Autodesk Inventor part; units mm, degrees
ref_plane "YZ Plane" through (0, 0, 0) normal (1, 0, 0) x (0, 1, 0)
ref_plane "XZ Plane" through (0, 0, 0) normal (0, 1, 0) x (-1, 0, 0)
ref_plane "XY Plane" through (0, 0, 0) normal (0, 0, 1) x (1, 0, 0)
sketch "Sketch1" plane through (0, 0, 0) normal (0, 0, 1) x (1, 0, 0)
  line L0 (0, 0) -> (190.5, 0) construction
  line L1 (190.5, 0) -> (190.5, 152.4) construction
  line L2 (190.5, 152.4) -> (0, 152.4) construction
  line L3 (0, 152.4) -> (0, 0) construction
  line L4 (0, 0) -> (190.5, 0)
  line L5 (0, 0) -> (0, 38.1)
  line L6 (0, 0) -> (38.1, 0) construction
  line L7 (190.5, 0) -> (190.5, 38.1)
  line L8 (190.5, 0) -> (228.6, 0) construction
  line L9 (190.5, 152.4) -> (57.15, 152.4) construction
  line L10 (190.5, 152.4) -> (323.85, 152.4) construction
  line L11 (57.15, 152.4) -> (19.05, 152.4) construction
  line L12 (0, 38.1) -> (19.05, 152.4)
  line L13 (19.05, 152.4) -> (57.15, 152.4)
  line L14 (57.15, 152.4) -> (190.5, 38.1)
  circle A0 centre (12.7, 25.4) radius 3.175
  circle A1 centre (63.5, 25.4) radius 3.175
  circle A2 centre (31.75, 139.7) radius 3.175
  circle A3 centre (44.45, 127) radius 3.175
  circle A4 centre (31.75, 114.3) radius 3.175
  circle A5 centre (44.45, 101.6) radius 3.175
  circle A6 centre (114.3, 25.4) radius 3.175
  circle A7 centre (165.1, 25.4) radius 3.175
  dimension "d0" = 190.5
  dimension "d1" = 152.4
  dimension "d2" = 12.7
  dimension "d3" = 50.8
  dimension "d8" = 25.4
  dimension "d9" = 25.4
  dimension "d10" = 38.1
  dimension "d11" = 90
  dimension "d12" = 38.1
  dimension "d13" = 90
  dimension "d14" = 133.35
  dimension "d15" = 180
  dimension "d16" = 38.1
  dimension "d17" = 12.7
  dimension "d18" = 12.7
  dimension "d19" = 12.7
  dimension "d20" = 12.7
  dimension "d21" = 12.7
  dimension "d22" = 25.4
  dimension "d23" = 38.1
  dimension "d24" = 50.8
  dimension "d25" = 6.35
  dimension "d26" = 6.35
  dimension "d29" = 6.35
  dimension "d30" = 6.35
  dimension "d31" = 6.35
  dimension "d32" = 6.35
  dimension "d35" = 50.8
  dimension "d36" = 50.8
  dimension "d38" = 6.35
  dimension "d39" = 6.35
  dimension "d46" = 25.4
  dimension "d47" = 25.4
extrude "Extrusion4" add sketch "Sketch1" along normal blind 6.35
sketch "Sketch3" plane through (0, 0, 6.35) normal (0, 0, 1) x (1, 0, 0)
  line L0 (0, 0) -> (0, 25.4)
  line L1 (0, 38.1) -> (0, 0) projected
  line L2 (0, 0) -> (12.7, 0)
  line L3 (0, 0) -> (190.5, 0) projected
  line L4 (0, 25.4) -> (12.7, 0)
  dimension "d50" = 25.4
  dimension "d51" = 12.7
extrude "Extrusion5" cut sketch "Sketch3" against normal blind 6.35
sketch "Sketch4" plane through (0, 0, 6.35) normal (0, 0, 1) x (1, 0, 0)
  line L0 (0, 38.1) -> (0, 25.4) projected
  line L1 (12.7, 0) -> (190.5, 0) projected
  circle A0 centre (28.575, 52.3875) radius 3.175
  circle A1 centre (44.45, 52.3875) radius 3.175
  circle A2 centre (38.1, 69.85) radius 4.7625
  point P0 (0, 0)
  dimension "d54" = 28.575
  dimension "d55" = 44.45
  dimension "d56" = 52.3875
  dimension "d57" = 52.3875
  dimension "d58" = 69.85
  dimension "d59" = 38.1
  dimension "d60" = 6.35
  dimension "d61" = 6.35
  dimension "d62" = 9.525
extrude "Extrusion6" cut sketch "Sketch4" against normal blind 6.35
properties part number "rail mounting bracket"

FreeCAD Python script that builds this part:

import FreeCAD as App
import Part
import Sketcher
from FreeCAD import Vector
Q = App.Units.Quantity


def add_polygon(sketch, points):
    """Adds a closed chain of lines whose ends are joined by coincident constraints."""
    first, n = sketch.GeometryCount, len(points)
    for a, b in zip(points, points[1:] + points[:1]):
        sketch.addGeometry(Part.LineSegment(App.Vector(*a, 0), App.Vector(*b, 0)), False)
    for i in range(n):
        sketch.addConstraint(Sketcher.Constraint("Coincident", first + i, 2, first + (i + 1) % n, 1))

doc = App.newDocument("Part")
body = doc.addObject("PartDesign::Body", "Body")

sketch1 = body.newObject("Sketcher::SketchObject", "Sketch")
sketch1.AttachmentSupport = (doc.getObject("XY_Plane"), [""])
sketch1.MapMode = "FlatFace"
add_polygon(sketch1, [(0, 38.1), (0, 0), (190.5, 0), (190.5, 38.1), (57.15, 152.4), (19.05, 152.4)])
sketch1.addGeometry(Part.Circle(Vector(12.7, 25.4, 0), Vector(0, 0, 1), 3.175), False)
sketch1.addGeometry(Part.Circle(Vector(63.5, 25.4, 0), Vector(0, 0, 1), 3.175), False)
sketch1.addGeometry(Part.Circle(Vector(114.3, 25.4, 0), Vector(0, 0, 1), 3.175), False)
sketch1.addGeometry(Part.Circle(Vector(165.1, 25.4, 0), Vector(0, 0, 1), 3.175), False)
sketch1.addGeometry(Part.Circle(Vector(44.45, 101.6, 0), Vector(0, 0, 1), 3.175), False)
sketch1.addGeometry(Part.Circle(Vector(31.75, 114.3, 0), Vector(0, 0, 1), 3.175), False)
sketch1.addGeometry(Part.Circle(Vector(44.45, 127, 0), Vector(0, 0, 1), 3.175), False)
sketch1.addGeometry(Part.Circle(Vector(31.75, 139.7, 0), Vector(0, 0, 1), 3.175), False)
sketch1.addConstraint(Sketcher.Constraint("Vertical", 0))
sketch1.addConstraint(Sketcher.Constraint("Horizontal", 1))
sketch1.addConstraint(Sketcher.Constraint("Vertical", 2))
sketch1.addConstraint(Sketcher.Constraint("Horizontal", 4))
sketch1.addConstraint(Sketcher.Constraint("Coincident", 0, 2, -1, 1))
sketch1.addConstraint(Sketcher.Constraint("Equal", 6, 7))
sketch1.addConstraint(Sketcher.Constraint("Equal", 7, 8))
sketch1.addConstraint(Sketcher.Constraint("Equal", 8, 9))
sketch1.addConstraint(Sketcher.Constraint("Equal", 9, 10))
sketch1.addConstraint(Sketcher.Constraint("Equal", 10, 11))
sketch1.addConstraint(Sketcher.Constraint("Equal", 11, 12))
sketch1.addConstraint(Sketcher.Constraint("Equal", 12, 13))
sketch1.addConstraint(Sketcher.Constraint("Horizontal", 6, 3, 7, 3))
sketch1.addConstraint(Sketcher.Constraint("Horizontal", 7, 3, 8, 3))
sketch1.addConstraint(Sketcher.Constraint("Horizontal", 8, 3, 9, 3))
sketch1.addConstraint(Sketcher.Constraint("Horizontal", 2, 2, 5, 2))
sketch1.addConstraint(Sketcher.Constraint("Vertical", 10, 3, 12, 3))
sketch1.addConstraint(Sketcher.Constraint("Vertical", 11, 3, 13, 3))
sketch1.addConstraint(Sketcher.Constraint("Equal", 4, 0))
sketch1.addConstraint(Sketcher.Constraint("Diameter", 6, Q("0.25 in")))
sketch1.addConstraint(Sketcher.Constraint("DistanceX", 1, 1, 1, 2, Q("7.5 in")))
sketch1.addConstraint(Sketcher.Constraint("DistanceX", 4, 2, 4, 1, Q("1.5 in")))
sketch1.addConstraint(Sketcher.Constraint("DistanceY", -1, 1, 6, 3, Q("1 in")))
sketch1.addConstraint(Sketcher.Constraint("DistanceY", -1, 1, 3, 2, Q("6 in")))
sketch1.addConstraint(Sketcher.Constraint("DistanceX", 6, 3, 7, 3, Q("2 in")))
sketch1.addConstraint(Sketcher.Constraint("DistanceX", 7, 3, 8, 3, Q("2 in")))
sketch1.addConstraint(Sketcher.Constraint("DistanceX", 8, 3, 9, 3, Q("2 in")))
sketch1.addConstraint(Sketcher.Constraint("DistanceY", 10, 3, 12, 3, Q("1 in")))
sketch1.addConstraint(Sketcher.Constraint("DistanceY", 11, 3, 13, 3, Q("1 in")))
sketch1.addConstraint(Sketcher.Constraint("DistanceX", 9, 3, 1, 2, Q("1 in")))
sketch1.addConstraint(Sketcher.Constraint("DistanceY", 12, 3, 3, 2, Q("1 in")))
sketch1.addConstraint(Sketcher.Constraint("DistanceX", 13, 3, 3, 2, Q("1 in")))
sketch1.addConstraint(Sketcher.Constraint("DistanceX", 4, 2, 12, 3, Q("1 in")))
sketch1.addConstraint(Sketcher.Constraint("DistanceY", 10, 3, 11, 3, Q("0.5 in")))
sketch1.addConstraint(Sketcher.Constraint("DistanceX", 11, 3, 9, 3, Q("5.25 in")))
pad1 = body.newObject("PartDesign::Pad", "Pad")
pad1.Profile = sketch1
pad1.Length = Q("0.25 in")

sketch2 = body.newObject("Sketcher::SketchObject", "Sketch001")
sketch2.AttachmentSupport = (doc.getObject("XY_Plane"), [""])
sketch2.MapMode = "FlatFace"
sketch2.AttachmentOffset = App.Placement(Vector(0, 0, 0.25 * 25.4), App.Rotation())
add_polygon(sketch2, [(0, 25.4), (0, 0), (12.7, 0)])
sketch2.addConstraint(Sketcher.Constraint("Vertical", 0))
sketch2.addConstraint(Sketcher.Constraint("Horizontal", 1))
sketch2.addConstraint(Sketcher.Constraint("Coincident", 0, 2, -1, 1))
sketch2.addConstraint(Sketcher.Constraint("DistanceY", 0, 2, 0, 1, Q("1 in")))
sketch2.addConstraint(Sketcher.Constraint("DistanceX", 1, 1, 1, 2, Q("0.5 in")))
pocket1 = body.newObject("PartDesign::Pocket", "Pocket")
pocket1.Profile = sketch2
pocket1.Length = Q("0.25 in")

sketch3 = body.newObject("Sketcher::SketchObject", "Sketch002")
sketch3.AttachmentSupport = (doc.getObject("XY_Plane"), [""])
sketch3.MapMode = "FlatFace"
sketch3.AttachmentOffset = App.Placement(Vector(0, 0, 0.25 * 25.4), App.Rotation())
sketch3.addGeometry(Part.Circle(Vector(28.575, 52.3875, 0), Vector(0, 0, 1), 3.175), False)
sketch3.addGeometry(Part.Circle(Vector(44.45, 52.3875, 0), Vector(0, 0, 1), 3.175), False)
sketch3.addGeometry(Part.Circle(Vector(38.1, 69.85, 0), Vector(0, 0, 1), 4.7625), False)
sketch3.addConstraint(Sketcher.Constraint("Equal", 0, 1))
sketch3.addConstraint(Sketcher.Constraint("Horizontal", 0, 3, 1, 3))
sketch3.addConstraint(Sketcher.Constraint("Diameter", 0, Q("0.25 in")))
sketch3.addConstraint(Sketcher.Constraint("Diameter", 2, Q("0.375 in")))
sketch3.addConstraint(Sketcher.Constraint("DistanceX", -1, 1, 2, 3, Q("1.5 in")))
sketch3.addConstraint(Sketcher.Constraint("DistanceX", -1, 1, 1, 3, Q("1.75 in")))
sketch3.addConstraint(Sketcher.Constraint("DistanceY", -1, 1, 2, 3, Q("2.75 in")))
sketch3.addConstraint(Sketcher.Constraint("DistanceX", -1, 1, 0, 3, Q("1.125 in")))
sketch3.addConstraint(Sketcher.Constraint("DistanceY", -1, 1, 0, 3, Q("2.0625 in")))
pocket2 = body.newObject("PartDesign::Pocket", "Pocket001")
pocket2.Profile = sketch3
pocket2.Length = Q("0.25 in")

doc.recompute()
